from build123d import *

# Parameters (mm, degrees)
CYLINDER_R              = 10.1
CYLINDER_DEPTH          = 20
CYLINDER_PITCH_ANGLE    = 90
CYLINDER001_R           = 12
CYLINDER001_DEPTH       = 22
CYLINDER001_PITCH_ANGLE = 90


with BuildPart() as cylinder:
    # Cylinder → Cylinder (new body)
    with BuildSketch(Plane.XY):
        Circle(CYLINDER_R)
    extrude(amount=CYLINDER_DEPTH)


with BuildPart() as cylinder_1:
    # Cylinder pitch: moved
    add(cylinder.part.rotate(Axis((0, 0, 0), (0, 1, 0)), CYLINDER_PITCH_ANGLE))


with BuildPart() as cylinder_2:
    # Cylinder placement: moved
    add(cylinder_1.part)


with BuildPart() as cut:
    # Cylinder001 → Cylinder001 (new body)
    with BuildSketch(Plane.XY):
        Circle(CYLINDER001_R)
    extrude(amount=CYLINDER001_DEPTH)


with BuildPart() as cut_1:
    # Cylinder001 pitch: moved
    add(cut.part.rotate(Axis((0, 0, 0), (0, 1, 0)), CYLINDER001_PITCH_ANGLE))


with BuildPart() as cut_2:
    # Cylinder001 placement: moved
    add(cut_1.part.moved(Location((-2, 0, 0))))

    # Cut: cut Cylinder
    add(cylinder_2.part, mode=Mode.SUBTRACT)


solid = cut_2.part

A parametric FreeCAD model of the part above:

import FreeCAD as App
import Part
import Sketcher

V = App.Vector
Q = App.Units.Quantity

doc = App.newDocument("Part")
params = doc.addObject("Spreadsheet::Sheet", "Params")
for row, (alias, value) in enumerate([
    ("sketch1_diameter", "20.2 mm"),
    ("pad1_length", "20 mm"),
    ("sketch2_diameter", "24 mm"),
    ("pad2_length", "22 mm"),
], start=1):
    params.set(f"A{row}", alias)
    params.set(f"B{row}", "=" + value)
    params.setAlias(f"B{row}", alias)

body = doc.addObject("PartDesign::Body", "Body")

# Sketch on XY plane
sketch1 = doc.addObject("Sketcher::SketchObject", "Sketch")
body.addObject(sketch1)
sketch1.AttachmentSupport = (doc.XY_Plane, [""])
sketch1.MapMode = "FlatFace"
sketch1.addGeometry(Part.Circle(V(0, 0, 0), V(0, 0, 1), 10.1), False)
sketch1.addConstraint(Sketcher.Constraint("Coincident", 0, 3, -1, 1))
sketch1.addConstraint(Sketcher.Constraint("Diameter", 0, Q("20.2 mm")))
sketch1.setExpression("Constraints[1]", "Params.sketch1_diameter")
pad1 = doc.addObject("PartDesign::Pad", "Pad")
body.addObject(pad1)
pad1.Profile = sketch1
pad1.setExpression("Length", "Params.pad1_length")
body2 = doc.addObject("PartDesign::Body", "Body001")
doc.recompute()

body.Placement = App.Placement(V(0, 0, 0), App.Rotation(V(0, 1, 0), 90))
boolean = doc.addObject("PartDesign::Boolean", "Boolean")
body2.addObject(boolean)
boolean.Type = "Fuse"
boolean.addObjects([body])
body3 = doc.addObject("PartDesign::Body", "Body002")

# Sketch on XY plane
sketch2 = doc.addObject("Sketcher::SketchObject", "Sketch001")
body3.addObject(sketch2)
sketch2.AttachmentSupport = (doc.getObject("XY_Plane002"), [""])
sketch2.MapMode = "FlatFace"
sketch2.addGeometry(Part.Circle(V(0, 0, 0), V(0, 0, 1), 12), False)
sketch2.addConstraint(Sketcher.Constraint("Coincident", 0, 3, -1, 1))
sketch2.addConstraint(Sketcher.Constraint("Diameter", 0, Q("24 mm")))
sketch2.setExpression("Constraints[1]", "Params.sketch2_diameter")
pad2 = doc.addObject("PartDesign::Pad", "Pad001")
body3.addObject(pad2)
pad2.Profile = sketch2
pad2.setExpression("Length", "Params.pad2_length")
body4 = doc.addObject("PartDesign::Body", "Body003")
doc.recompute()

body3.Placement = App.Placement(V(0, 0, 0), App.Rotation(V(0, 1, 0), 90))
boolean2 = doc.addObject("PartDesign::Boolean", "Boolean001")
body4.addObject(boolean2)
boolean2.Type = "Fuse"
boolean2.addObjects([body3])
body5 = doc.addObject("PartDesign::Body", "Body004")
doc.recompute()

body4.Placement = App.Placement(V(-2, 0, 0), App.Rotation(V(0, 0, 1), 0))
boolean3 = doc.addObject("PartDesign::Boolean", "Boolean002")
body5.addObject(boolean3)
boolean3.Type = "Fuse"
boolean3.addObjects([body4])
doc.recompute()

boolean4 = doc.addObject("PartDesign::Boolean", "Boolean003")
body5.addObject(boolean4)
boolean4.Type = "Cut"
boolean4.addObjects([body2])

doc.recompute()
